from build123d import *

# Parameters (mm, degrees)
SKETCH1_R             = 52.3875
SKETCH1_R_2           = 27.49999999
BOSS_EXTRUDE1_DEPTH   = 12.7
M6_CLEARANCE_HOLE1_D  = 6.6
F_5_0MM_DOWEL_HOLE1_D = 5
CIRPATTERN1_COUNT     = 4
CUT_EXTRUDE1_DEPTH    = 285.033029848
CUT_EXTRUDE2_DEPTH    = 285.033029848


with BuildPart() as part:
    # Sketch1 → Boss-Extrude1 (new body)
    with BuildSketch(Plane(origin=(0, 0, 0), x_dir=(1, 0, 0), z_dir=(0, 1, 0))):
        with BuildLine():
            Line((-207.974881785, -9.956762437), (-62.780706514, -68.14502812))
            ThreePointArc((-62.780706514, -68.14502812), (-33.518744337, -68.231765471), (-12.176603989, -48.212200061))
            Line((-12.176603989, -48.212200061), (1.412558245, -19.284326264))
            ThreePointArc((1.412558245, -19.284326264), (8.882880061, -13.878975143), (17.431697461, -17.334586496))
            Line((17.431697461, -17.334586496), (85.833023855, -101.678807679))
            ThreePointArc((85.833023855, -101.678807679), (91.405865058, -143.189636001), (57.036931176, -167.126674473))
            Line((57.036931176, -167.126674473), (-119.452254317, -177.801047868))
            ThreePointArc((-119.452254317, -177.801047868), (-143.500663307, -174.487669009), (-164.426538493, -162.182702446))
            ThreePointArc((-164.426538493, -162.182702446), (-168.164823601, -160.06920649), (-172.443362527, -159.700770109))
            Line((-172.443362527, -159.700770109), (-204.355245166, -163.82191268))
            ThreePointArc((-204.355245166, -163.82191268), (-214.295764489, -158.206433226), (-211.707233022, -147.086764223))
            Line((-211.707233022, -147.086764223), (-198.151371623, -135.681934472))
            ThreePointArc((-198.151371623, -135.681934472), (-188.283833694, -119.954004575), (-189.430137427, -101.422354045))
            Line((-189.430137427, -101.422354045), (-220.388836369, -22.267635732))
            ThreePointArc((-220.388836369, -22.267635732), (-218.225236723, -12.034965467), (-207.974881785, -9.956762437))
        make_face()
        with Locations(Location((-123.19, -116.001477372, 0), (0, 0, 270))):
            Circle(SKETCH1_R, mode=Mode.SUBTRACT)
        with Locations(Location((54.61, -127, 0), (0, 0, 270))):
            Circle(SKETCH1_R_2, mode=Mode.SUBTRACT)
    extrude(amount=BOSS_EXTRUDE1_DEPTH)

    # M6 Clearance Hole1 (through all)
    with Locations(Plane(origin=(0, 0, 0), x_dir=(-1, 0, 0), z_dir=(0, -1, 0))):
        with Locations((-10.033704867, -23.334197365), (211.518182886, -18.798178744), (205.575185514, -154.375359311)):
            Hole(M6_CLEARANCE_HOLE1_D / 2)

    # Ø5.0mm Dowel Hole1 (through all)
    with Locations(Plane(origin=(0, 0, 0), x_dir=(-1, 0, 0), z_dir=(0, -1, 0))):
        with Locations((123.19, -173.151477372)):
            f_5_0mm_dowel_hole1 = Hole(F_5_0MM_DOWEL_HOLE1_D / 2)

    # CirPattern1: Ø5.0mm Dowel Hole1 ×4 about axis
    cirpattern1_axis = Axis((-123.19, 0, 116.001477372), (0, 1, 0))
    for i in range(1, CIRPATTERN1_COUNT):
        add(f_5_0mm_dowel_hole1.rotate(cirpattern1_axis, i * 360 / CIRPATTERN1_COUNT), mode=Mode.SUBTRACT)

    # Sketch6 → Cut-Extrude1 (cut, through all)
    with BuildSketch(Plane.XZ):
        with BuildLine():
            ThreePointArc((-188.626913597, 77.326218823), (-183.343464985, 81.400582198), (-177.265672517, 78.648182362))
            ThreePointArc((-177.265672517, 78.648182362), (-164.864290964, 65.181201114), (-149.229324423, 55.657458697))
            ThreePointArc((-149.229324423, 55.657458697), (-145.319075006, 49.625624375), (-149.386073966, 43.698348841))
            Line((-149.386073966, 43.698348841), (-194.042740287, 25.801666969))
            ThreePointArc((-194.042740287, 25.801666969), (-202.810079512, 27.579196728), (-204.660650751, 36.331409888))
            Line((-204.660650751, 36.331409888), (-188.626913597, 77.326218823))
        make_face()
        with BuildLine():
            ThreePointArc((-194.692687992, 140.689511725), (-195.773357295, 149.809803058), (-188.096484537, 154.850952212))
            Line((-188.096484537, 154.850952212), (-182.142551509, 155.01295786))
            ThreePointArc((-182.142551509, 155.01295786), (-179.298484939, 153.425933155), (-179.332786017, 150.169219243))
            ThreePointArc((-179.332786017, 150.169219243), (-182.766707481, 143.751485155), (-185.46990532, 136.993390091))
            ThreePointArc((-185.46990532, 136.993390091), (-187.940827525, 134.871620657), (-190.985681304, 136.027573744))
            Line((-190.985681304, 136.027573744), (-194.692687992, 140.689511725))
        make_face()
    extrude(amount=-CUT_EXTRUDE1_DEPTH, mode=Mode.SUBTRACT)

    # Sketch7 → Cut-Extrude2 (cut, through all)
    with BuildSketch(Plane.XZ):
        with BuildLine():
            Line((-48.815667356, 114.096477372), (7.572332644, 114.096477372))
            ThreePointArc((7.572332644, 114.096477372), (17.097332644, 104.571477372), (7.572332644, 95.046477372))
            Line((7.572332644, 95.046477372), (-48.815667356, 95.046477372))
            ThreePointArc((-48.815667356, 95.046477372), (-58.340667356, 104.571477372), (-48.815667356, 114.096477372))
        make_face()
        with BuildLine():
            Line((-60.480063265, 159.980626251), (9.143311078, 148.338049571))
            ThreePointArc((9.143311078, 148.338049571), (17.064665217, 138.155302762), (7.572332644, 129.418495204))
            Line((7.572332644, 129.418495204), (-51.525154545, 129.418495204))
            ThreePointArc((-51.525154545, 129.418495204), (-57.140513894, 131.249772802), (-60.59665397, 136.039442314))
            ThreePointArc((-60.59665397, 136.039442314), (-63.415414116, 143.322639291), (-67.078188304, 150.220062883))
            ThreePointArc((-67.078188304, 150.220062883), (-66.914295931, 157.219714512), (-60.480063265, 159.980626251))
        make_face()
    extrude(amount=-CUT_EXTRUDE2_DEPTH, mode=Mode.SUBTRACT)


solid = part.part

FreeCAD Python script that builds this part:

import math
import FreeCAD as App
import Part
import Sketcher
Q = App.Units.Quantity

doc = App.newDocument("Part")
body = doc.addObject("PartDesign::Body", "Body")

# Sketch on XZ plane
sketch1 = body.newObject("Sketcher::SketchObject", "Sketch")
sketch1.AttachmentSupport = (doc.getObject("XZ_Plane"), [""])
sketch1.MapMode = "FlatFace"
sketch1.addGeometry([
    Part.LineSegment(App.Vector(-62.780707, 68.145028, 0), App.Vector(-207.974882, 9.956762, 0)),  # 0
    Part.ArcOfCircle(Part.Circle(App.Vector(-211.518183, 18.798179, 0), App.Vector(0, 0, 1), 9.525), math.radians(158.638723), math.radians(291.839023)),  # 1
    Part.LineSegment(App.Vector(-220.388836, 22.267636, 0), App.Vector(-189.430137, 101.422354, 0)),  # 2
    Part.ArcOfCircle(Part.Circle(App.Vector(-217.679198, 112.471022, 0), App.Vector(0, 0, 1), 30.332861), math.radians(-21.361277), math.radians(49.925396)),  # 3
    Part.LineSegment(App.Vector(-198.151372, 135.681934, 0), App.Vector(-211.707233, 147.086764, 0)),  # 4
    Part.ArcOfCircle(Part.Circle(App.Vector(-205.575186, 154.375359, 0), App.Vector(0, 0, 1), 9.525), math.radians(82.641474), math.radians(229.925396)),  # 5
    Part.LineSegment(App.Vector(-204.355245, 163.821913, 0), App.Vector(-172.443363, 159.70077, 0)),  # 6
    Part.ArcOfCircle(Part.Circle(App.Vector(-171.150394, 169.712817, 0), App.Vector(0, 0, 1), 10.09519), math.radians(-97.358526), math.radians(-48.237421)),  # 7
    Part.ArcOfCircle(Part.Circle(App.Vector(-123.19, 116.001477, 0), App.Vector(0, 0, 1), 61.9125), math.radians(86.538868), math.radians(131.762579)),  # 8
    Part.LineSegment(App.Vector(-119.452254, 177.801048, 0), App.Vector(57.036931, 167.126674, 0)),  # 9
    Part.ArcOfCircle(Part.Circle(App.Vector(54.61, 127, 0), App.Vector(0, 0, 1), 40.2), math.radians(-39.0413), math.radians(86.538868)),  # 10
    Part.LineSegment(App.Vector(85.833024, 101.678808, 0), App.Vector(17.431697, 17.334586, 0)),  # 11
    Part.ArcOfCircle(Part.Circle(App.Vector(10.033705, 23.334197, 0), App.Vector(0, 0, 1), 9.525), math.radians(-154.837733), math.radians(-39.0413)),  # 12
    Part.LineSegment(App.Vector(1.412558, 19.284326, 0), App.Vector(-12.176604, 48.2122, 0)),  # 13
    Part.ArcOfCircle(Part.Circle(App.Vector(-48.040574, 31.364736, 0), App.Vector(0, 0, 1), 39.624), math.radians(25.162267), math.radians(111.839023)),  # 14
    Part.Circle(App.Vector(54.61, 127, 0), App.Vector(0, 0, 1), 27.5),  # 15
    Part.Circle(App.Vector(-123.19, 116.001477, 0), App.Vector(0, 0, 1), 52.3875),  # 16
], False)
sketch1.addConstraint([
    Sketcher.Constraint("Coincident", 0, 2, 1, 2),
    Sketcher.Constraint("Coincident", 1, 1, 2, 1),
    Sketcher.Constraint("Coincident", 2, 2, 3, 1),
    Sketcher.Constraint("Coincident", 3, 2, 4, 1),
    Sketcher.Constraint("Coincident", 4, 2, 5, 2),
    Sketcher.Constraint("Coincident", 5, 1, 6, 1),
    Sketcher.Constraint("Coincident", 6, 2, 7, 1),
    Sketcher.Constraint("Coincident", 7, 2, 8, 2),
    Sketcher.Constraint("Coincident", 8, 1, 9, 1),
    Sketcher.Constraint("Coincident", 9, 2, 10, 2),
    Sketcher.Constraint("Coincident", 10, 1, 11, 1),
    Sketcher.Constraint("Coincident", 11, 2, 12, 2),
    Sketcher.Constraint("Coincident", 12, 1, 13, 1),
    Sketcher.Constraint("Coincident", 13, 2, 14, 1),
    Sketcher.Constraint("Coincident", 14, 2, 0, 1),
    Sketcher.Constraint("Coincident", 15, 3, 10, 3),
    Sketcher.Constraint("Coincident", 16, 3, 8, 3),
    Sketcher.Constraint("Radius", 14, Q("1.56 in")),
    Sketcher.Constraint("Diameter", 16, Q("4.125 in")),
    Sketcher.Constraint("DistanceY", -1, 1, 10, 3, Q("5 in")),
    Sketcher.Constraint("Radius", 1, Q("0.375 in")),
    Sketcher.Constraint("Radius", 5, Q("0.375 in")),
    Sketcher.Constraint("Radius", 8, Q("2.4375 in")),
    Sketcher.Constraint("Radius", 12, Q("0.375 in")),
    Sketcher.Constraint("DistanceX", 8, 3, 10, 3, Q("7 in")),
    Sketcher.Constraint("Diameter", 15, 55.0),
    Sketcher.Constraint("DistanceX", 8, 3, -1, 1, Q("4.85 in")),
    Sketcher.Constraint("Radius", 10, 40.2),
    Sketcher.Constraint("Radius", 3, 30.332861),
    Sketcher.Constraint("Radius", 7, 10.09519),
    Sketcher.Constraint("DistanceX", 1, 3, 0, 2, Q("0.1395 in")),
    Sketcher.Constraint("DistanceX", 3, 3, -1, 1, 217.679198),
    Sketcher.Constraint("DistanceY", -1, 1, 13, 2, 48.2122),
    Sketcher.Constraint("DistanceY", 1, 3, 8, 3, 97.203299),
    Sketcher.Constraint("DistanceX", 7, 3, 12, 3, 181.184098),
    Sketcher.Constraint("DistanceX", 13, 2, 11, 2, 29.608301),
    Sketcher.Constraint("DistanceY", 12, 1, 14, 2, 48.860702),
    Sketcher.Constraint("Distance", 0, 156.42002),
    Sketcher.Constraint("Distance", 2, 84.993591),
    Sketcher.Constraint("Distance", 4, 17.715291),
    Sketcher.Constraint("Distance", 11, 108.594149),
    Sketcher.Constraint("DistanceY", -1, 1, 1, 3, 18.798179),
    Sketcher.Constraint("DistanceY", -1, 1, 3, 3, 112.471022),
    Sketcher.Constraint("DistanceY", -1, 1, 5, 3, 154.375359),
    Sketcher.Constraint("DistanceX", 0, 2, -1, 1, 207.974882),
    Sketcher.Constraint("DistanceX", 3, 2, -1, 1, 198.151372),
    Sketcher.Constraint("DistanceY", -1, 1, 6, 2, 159.70077),
    Sketcher.Constraint("DistanceX", 7, 2, -1, 1, 164.426538),
    Sketcher.Constraint("DistanceX", -1, 1, 9, 2, 57.036931),
    Sketcher.Constraint("DistanceX", -1, 1, 12, 1, 1.412558),
    Sketcher.Constraint("DistanceY", -1, 1, 14, 2, 68.145028),
    Sketcher.Constraint("DistanceX", 5, 3, 7, 3, 34.424792),
    Sketcher.Constraint("DistanceX", 1, 3, 7, 3, 40.367789),
    Sketcher.Constraint("DistanceX", 14, 3, 12, 3, 58.074279),
    Sketcher.Constraint("DistanceX", 1, 1, 3, 3, 2.709638),
    Sketcher.Constraint("DistanceX", 5, 3, 5, 1, 1.21994),
    Sketcher.Constraint("DistanceX", 7, 3, 8, 1, 51.698139),
])
pad1 = body.newObject("PartDesign::Pad", "Pad")
pad1.Profile = sketch1
pad1.Length = Q("0.5 in")
pad1.Reversed = True

# Sketch on XZ plane
sketch2 = body.newObject("Sketcher::SketchObject", "Sketch001")
sketch2.AttachmentSupport = (doc.getObject("XZ_Plane"), [""])
sketch2.MapMode = "FlatFace"
sketch2.addGeometry([
    Part.Circle(App.Vector(10.033705, 23.334197, 0), App.Vector(0, 0, 1), 3.3),
    Part.Circle(App.Vector(-211.518183, 18.798179, 0), App.Vector(0, 0, 1), 3.3),
    Part.Circle(App.Vector(-205.575186, 154.375359, 0), App.Vector(0, 0, 1), 3.3),
], False)
sketch2.addConstraint([
    Sketcher.Constraint("Equal", 0, 1),
    Sketcher.Constraint("Equal", 1, 2),
    Sketcher.Constraint("Diameter", 0, 6.6),
    Sketcher.Constraint("DistanceY", -1, 1, 1, 3, 18.798179),
    Sketcher.Constraint("DistanceY", -1, 1, 2, 3, 154.375359),
    Sketcher.Constraint("DistanceY", 1, 3, 0, 3, 4.536019),
    Sketcher.Constraint("DistanceX", 2, 3, 0, 3, 215.60889),
    Sketcher.Constraint("DistanceX", -1, 1, 0, 3, 10.033705),
    Sketcher.Constraint("DistanceX", 1, 3, -1, 1, 211.518183),
])
doc.recompute()
hole = body.newObject("PartDesign::Hole", "Hole")
hole.Profile = sketch2
hole.ThreadType = "None"
hole.Diameter = 6.6
hole.DepthType = "ThroughAll"

# Sketch on XZ plane
sketch3 = body.newObject("Sketcher::SketchObject", "Sketch002")
sketch3.AttachmentSupport = (doc.getObject("XZ_Plane"), [""])
sketch3.MapMode = "FlatFace"
sketch3.addGeometry(Part.Circle(App.Vector(-123.19, 173.151477, 0), App.Vector(0, 0, 1), 2.5), False)
sketch3.addConstraint([
    Sketcher.Constraint("Diameter", 0, 5.0),
    Sketcher.Constraint("DistanceX", 0, 3, -1, 1, Q("4.85 in")),
    Sketcher.Constraint("DistanceY", -1, 1, 0, 3, 173.151477),
])
doc.recompute()
hole2 = body.newObject("PartDesign::Hole", "Hole001")
hole2.Profile = sketch3
hole2.ThreadType = "None"
hole2.Diameter = 5
hole2.DepthType = "ThroughAll"
doc.recompute()

datumline = body.newObject("PartDesign::Line", "DatumLine")
datumline.Placement = App.Placement(App.Vector(-123.19, 0, 116.001477), App.Rotation(App.Vector(0, 0, 1), App.Vector(0, 1, 0)))
polarpattern = body.newObject("PartDesign::PolarPattern", "PolarPattern")
polarpattern.Originals = [hole2]
polarpattern.Axis = (datumline, [""])
polarpattern.Angle = 360
polarpattern.Occurrences = 4
body.Tip = polarpattern

# Sketch on XZ plane
sketch4 = body.newObject("Sketcher::SketchObject", "Sketch003")
sketch4.AttachmentSupport = (doc.getObject("XZ_Plane"), [""])
sketch4.MapMode = "FlatFace"
sketch4.addGeometry([
    Part.ArcOfCircle(Part.Circle(App.Vector(-182.594869, 74.966988, 0), App.Vector(0, 0, 1), 6.477), math.radians(34.635153), math.radians(158.638723)),  # 0
    Part.LineSegment(App.Vector(-188.626914, 77.326219, 0), App.Vector(-204.660651, 36.33141, 0)),  # 1
    Part.ArcOfCircle(Part.Circle(App.Vector(-197.073399, 33.363912, 0), App.Vector(0, 0, 1), 8.146928), math.radians(158.638723), math.radians(291.839023)),  # 2
    Part.LineSegment(App.Vector(-194.04274, 25.801667, 0), App.Vector(-149.386074, 43.698349, 0)),  # 3
    Part.ArcOfCircle(Part.Circle(App.Vector(-151.795519, 49.710512, 0), App.Vector(0, 0, 1), 6.477), math.radians(-68.160977), math.radians(66.659098)),  # 4
    Part.ArcOfCircle(Part.Circle(App.Vector(-123.19, 116.001477, 0), App.Vector(0, 0, 1), 65.7225), math.radians(-145.364847), math.radians(-113.340902)),  # 5
    Part.ArcOfCircle(Part.Circle(App.Vector(-187.859009, 146.123409, 0), App.Vector(0, 0, 1), 8.730773), math.radians(91.558625), math.radians(218.490467)),  # 6
    Part.LineSegment(App.Vector(-194.692688, 140.689512, 0), App.Vector(-190.985681, 136.027574, 0)),  # 7
    Part.ArcOfCircle(Part.Circle(App.Vector(-188.490631, 138.011549, 0), App.Vector(0, 0, 1), 3.1877), math.radians(-141.509533), math.radians(-18.626778)),  # 8
    Part.ArcOfCircle(Part.Circle(App.Vector(-123.19, 116.001477, 0), App.Vector(0, 0, 1), 65.7225), math.radians(148.67587), math.radians(161.373222)),  # 9
    Part.ArcOfCircle(Part.Circle(App.Vector(-182.055847, 151.826437, 0), App.Vector(0, 0, 1), 3.1877), math.radians(-31.32413), math.radians(91.558625)),  # 10
    Part.LineSegment(App.Vector(-182.142552, 155.012958, 0), App.Vector(-188.096485, 154.850952, 0)),  # 11
], False)
sketch4.addConstraint([
    Sketcher.Constraint("Tangent", 0, 2, 1, 1),
    Sketcher.Constraint("Tangent", 1, 2, 2, 1),
    Sketcher.Constraint("Tangent", 2, 2, 3, 1),
    Sketcher.Constraint("Tangent", 3, 2, 4, 1),
    Sketcher.Constraint("Tangent", 4, 2, 5, 2),
    Sketcher.Constraint("Tangent", 5, 1, 0, 1),
    Sketcher.Constraint("Tangent", 6, 2, 7, 1),
    Sketcher.Constraint("Tangent", 7, 2, 8, 1),
    Sketcher.Constraint("Tangent", 8, 2, 9, 2),
    Sketcher.Constraint("Tangent", 9, 1, 10, 1),
    Sketcher.Constraint("Tangent", 10, 2, 11, 1),
    Sketcher.Constraint("Tangent", 11, 2, 6, 1),
    Sketcher.Constraint("Coincident", 9, 3, 5, 3),
    Sketcher.Constraint("Equal", 0, 4),
    Sketcher.Constraint("Equal", 5, 9),
    Sketcher.Constraint("Equal", 8, 10),
    Sketcher.Constraint("Equal", 7, 11),
    Sketcher.Constraint("Radius", 0, Q("0.255 in")),
    Sketcher.Constraint("Radius", 5, Q("2.5875 in")),
    Sketcher.Constraint("Radius", 8, Q("0.1255 in")),
    Sketcher.Constraint("DistanceX", 5, 3, -1, 1, Q("4.85 in")),
    Sketcher.Constraint("Radius", 2, 8.146928),
    Sketcher.Constraint("Radius", 6, 8.730773),
    Sketcher.Constraint("DistanceX", 2, 3, -1, 1, 197.073399),
    Sketcher.Constraint("DistanceY", 2, 3, 4, 3, 16.3466),
    Sketcher.Constraint("DistanceX", 5, 1, 3, 2, 27.879599),
    Sketcher.Constraint("DistanceX", 6, 2, 9, 1, 15.359902),
    Sketcher.Constraint("DistanceX", 11, 2, 9, 1, 8.763699),
    Sketcher.Constraint("DistanceX", 0, 3, -1, 1, 182.594869),
    Sketcher.Constraint("DistanceY", -1, 1, 0, 3, 74.966988),
    Sketcher.Constraint("DistanceX", 6, 3, -1, 1, 187.859009),
])
pocket1 = body.newObject("PartDesign::Pocket", "Pocket")
pocket1.Profile = sketch4
pocket1.Type = "ThroughAll"

# Sketch on XZ plane
sketch5 = body.newObject("Sketcher::SketchObject", "Sketch004")
sketch5.AttachmentSupport = (doc.getObject("XZ_Plane"), [""])
sketch5.MapMode = "FlatFace"
sketch5.addGeometry([
    Part.LineSegment(App.Vector(7.572333, 114.096477, 0), App.Vector(-48.815667, 114.096477, 0)),  # 0
    Part.ArcOfCircle(Part.Circle(App.Vector(-48.815667, 104.571477, 0), App.Vector(0, 0, 1), 9.525), math.radians(90), math.radians(270)),  # 1
    Part.LineSegment(App.Vector(-48.815667, 95.046477, 0), App.Vector(7.572333, 95.046477, 0)),  # 2
    Part.ArcOfCircle(Part.Circle(App.Vector(7.572333, 104.571477, 0), App.Vector(0, 0, 1), 9.525), math.radians(-90), math.radians(90)),  # 3
    Part.LineSegment(App.Vector(9.143311, 148.33805, 0), App.Vector(-60.480063, 159.980626, 0)),  # 4
    Part.ArcOfCircle(Part.Circle(App.Vector(-61.548329, 153.592329, 0), App.Vector(0, 0, 1), 6.477), math.radians(80.506709), math.radians(211.376032)),  # 5
    Part.ArcOfCircle(Part.Circle(App.Vector(-123.19, 116.001477, 0), App.Vector(0, 0, 1), 65.7225), math.radians(17.751392), math.radians(31.376032)),  # 6
    Part.ArcOfCircle(Part.Circle(App.Vector(-51.525155, 138.943495, 0), App.Vector(0, 0, 1), 9.525), math.radians(-162.248608), math.radians(-90)),  # 7
    Part.LineSegment(App.Vector(-51.525155, 129.418495, 0), App.Vector(7.572333, 129.418495, 0)),  # 8
    Part.ArcOfCircle(Part.Circle(App.Vector(7.572333, 138.943495, 0), App.Vector(0, 0, 1), 9.525), math.radians(-90), math.radians(80.506709)),  # 9
], False)
sketch5.addConstraint([
    Sketcher.Constraint("Tangent", 0, 2, 1, 1),
    Sketcher.Constraint("Tangent", 1, 2, 2, 1),
    Sketcher.Constraint("Tangent", 2, 2, 3, 1),
    Sketcher.Constraint("Tangent", 3, 2, 0, 1),
    Sketcher.Constraint("Tangent", 4, 2, 5, 1),
    Sketcher.Constraint("Tangent", 5, 2, 6, 2),
    Sketcher.Constraint("Tangent", 6, 1, 7, 1),
    Sketcher.Constraint("Tangent", 7, 2, 8, 1),
    Sketcher.Constraint("Tangent", 8, 2, 9, 1),
    Sketcher.Constraint("Tangent", 9, 2, 4, 1),
    Sketcher.Constraint("Horizontal", 0),
    Sketcher.Constraint("Horizontal", 2),
    Sketcher.Constraint("Horizontal", 8),
    Sketcher.Constraint("Equal", 3, 7),
    Sketcher.Constraint("Equal", 7, 9),
    Sketcher.Constraint("Vertical", 3, 3, 9, 3),
    Sketcher.Constraint("Radius", 1, Q("0.375 in")),
    Sketcher.Constraint("Radius", 5, Q("0.255 in")),
    Sketcher.Constraint("DistanceX", 0, 2, 0, 1, Q("2.22 in")),
    Sketcher.Constraint("Radius", 6, Q("2.5875 in")),
    Sketcher.Constraint("DistanceX", 6, 3, -1, 1, Q("4.85 in")),
    Sketcher.Constraint("DistanceY", 1, 3, 6, 3, Q("0.45 in")),
    Sketcher.Constraint("Distance", 4, 70.590112),
    Sketcher.Constraint("DistanceX", 8, 1, 8, 2, 59.097487),
    Sketcher.Constraint("DistanceX", 5, 3, -1, 1, 61.548329),
    Sketcher.Constraint("DistanceY", -1, 1, 5, 3, 153.592329),
])
pocket2 = body.newObject("PartDesign::Pocket", "Pocket001")
pocket2.Profile = sketch5
pocket2.Type = "ThroughAll"

doc.recompute()
